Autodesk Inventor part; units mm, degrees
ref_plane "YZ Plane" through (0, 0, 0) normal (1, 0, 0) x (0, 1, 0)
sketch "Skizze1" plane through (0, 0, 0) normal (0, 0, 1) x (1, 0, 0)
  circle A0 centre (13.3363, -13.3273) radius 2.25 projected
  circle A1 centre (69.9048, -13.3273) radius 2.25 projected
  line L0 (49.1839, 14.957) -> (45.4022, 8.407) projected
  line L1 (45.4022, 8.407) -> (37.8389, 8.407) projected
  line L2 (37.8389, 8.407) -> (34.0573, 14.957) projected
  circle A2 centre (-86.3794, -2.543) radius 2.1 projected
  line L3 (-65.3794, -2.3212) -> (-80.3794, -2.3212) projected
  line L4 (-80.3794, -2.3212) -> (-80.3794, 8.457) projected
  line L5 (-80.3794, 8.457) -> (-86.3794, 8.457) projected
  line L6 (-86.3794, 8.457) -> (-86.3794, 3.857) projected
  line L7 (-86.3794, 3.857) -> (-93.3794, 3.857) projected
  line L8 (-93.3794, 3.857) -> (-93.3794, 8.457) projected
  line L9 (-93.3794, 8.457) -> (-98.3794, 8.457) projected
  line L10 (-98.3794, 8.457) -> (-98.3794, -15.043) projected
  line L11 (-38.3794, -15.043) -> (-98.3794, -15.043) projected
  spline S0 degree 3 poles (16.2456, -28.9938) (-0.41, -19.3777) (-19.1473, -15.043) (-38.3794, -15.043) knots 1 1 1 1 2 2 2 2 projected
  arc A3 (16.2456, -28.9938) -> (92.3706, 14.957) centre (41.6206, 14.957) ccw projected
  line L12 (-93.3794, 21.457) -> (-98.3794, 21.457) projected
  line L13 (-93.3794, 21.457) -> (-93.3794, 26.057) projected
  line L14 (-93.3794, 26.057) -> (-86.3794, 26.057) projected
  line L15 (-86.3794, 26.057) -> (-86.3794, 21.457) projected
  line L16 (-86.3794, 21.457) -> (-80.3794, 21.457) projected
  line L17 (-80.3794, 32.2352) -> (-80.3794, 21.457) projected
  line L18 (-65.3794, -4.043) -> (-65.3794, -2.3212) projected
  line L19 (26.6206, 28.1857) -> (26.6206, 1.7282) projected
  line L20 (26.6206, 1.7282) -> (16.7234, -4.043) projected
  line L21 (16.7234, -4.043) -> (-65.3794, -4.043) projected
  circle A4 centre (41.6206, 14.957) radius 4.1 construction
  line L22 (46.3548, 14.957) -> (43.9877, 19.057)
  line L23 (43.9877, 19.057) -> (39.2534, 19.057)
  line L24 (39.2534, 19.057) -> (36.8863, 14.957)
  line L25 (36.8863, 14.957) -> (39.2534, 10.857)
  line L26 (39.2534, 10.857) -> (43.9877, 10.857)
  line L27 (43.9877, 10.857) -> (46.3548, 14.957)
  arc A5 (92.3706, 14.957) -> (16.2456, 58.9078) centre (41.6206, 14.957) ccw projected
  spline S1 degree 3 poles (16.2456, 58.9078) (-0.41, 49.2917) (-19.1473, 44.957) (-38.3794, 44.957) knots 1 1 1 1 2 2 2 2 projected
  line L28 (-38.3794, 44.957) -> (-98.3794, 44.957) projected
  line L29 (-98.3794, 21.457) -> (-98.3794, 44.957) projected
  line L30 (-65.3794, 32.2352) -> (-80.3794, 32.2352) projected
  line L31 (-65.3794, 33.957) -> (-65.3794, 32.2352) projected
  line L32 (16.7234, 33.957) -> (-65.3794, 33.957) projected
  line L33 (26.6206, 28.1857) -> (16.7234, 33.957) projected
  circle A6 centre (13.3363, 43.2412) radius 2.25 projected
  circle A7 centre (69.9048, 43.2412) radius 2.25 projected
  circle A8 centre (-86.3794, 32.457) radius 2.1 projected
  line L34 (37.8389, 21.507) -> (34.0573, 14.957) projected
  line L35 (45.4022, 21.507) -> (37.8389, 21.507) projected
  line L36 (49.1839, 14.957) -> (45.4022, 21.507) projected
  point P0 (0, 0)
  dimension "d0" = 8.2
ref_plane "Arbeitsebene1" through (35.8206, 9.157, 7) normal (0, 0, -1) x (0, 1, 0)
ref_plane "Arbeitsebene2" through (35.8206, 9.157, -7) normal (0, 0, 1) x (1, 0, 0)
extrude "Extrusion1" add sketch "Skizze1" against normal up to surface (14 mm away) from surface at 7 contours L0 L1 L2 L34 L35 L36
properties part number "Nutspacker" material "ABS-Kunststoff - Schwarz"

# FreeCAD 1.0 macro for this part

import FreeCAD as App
import Part
import Sketcher
from FreeCAD import Vector
Q = App.Units.Quantity

doc = App.newDocument("Part")
body = doc.addObject("PartDesign::Body", "Body")

sketch1 = body.newObject("Sketcher::SketchObject", "Sketch")
sketch1.AttachmentSupport = (doc.getObject("XY_Plane"), [""])
sketch1.MapMode = "FlatFace"
sketch1.AttachmentOffset = App.Placement(Vector(0, 0, 7), App.Rotation())
sketch1.addGeometry([
    Part.LineSegment(Vector(45.4022, 8.407, 0), Vector(49.1839, 14.957, 0)),
    Part.LineSegment(Vector(49.1839, 14.957, 0), Vector(45.4022, 21.507, 0)),
    Part.LineSegment(Vector(45.4022, 21.507, 0), Vector(37.8389, 21.507, 0)),
    Part.LineSegment(Vector(37.8389, 21.507, 0), Vector(34.0573, 14.957, 0)),
    Part.LineSegment(Vector(34.0573, 14.957, 0), Vector(37.8389, 8.407, 0)),
    Part.LineSegment(Vector(37.8389, 8.407, 0), Vector(45.4022, 8.407, 0)),
    Part.LineSegment(Vector(43.9877, 19.057, 0), Vector(46.3548, 14.957, 0)),
    Part.LineSegment(Vector(46.3548, 14.957, 0), Vector(43.9877, 10.857, 0)),
    Part.LineSegment(Vector(43.9877, 10.857, 0), Vector(39.2534, 10.857, 0)),
    Part.LineSegment(Vector(39.2534, 10.857, 0), Vector(36.8863, 14.957, 0)),
    Part.LineSegment(Vector(36.8863, 14.957, 0), Vector(39.2534, 19.057, 0)),
    Part.LineSegment(Vector(39.2534, 19.057, 0), Vector(43.9877, 19.057, 0)),
], False)
sketch1.addConstraint([
    Sketcher.Constraint("Coincident", 0, 2, 1, 1),
    Sketcher.Constraint("Coincident", 1, 2, 2, 1),
    Sketcher.Constraint("Coincident", 2, 2, 3, 1),
    Sketcher.Constraint("Coincident", 3, 2, 4, 1),
    Sketcher.Constraint("Coincident", 4, 2, 5, 1),
    Sketcher.Constraint("Coincident", 5, 2, 0, 1),
    Sketcher.Constraint("Coincident", 6, 2, 7, 1),
    Sketcher.Constraint("Coincident", 7, 2, 8, 1),
    Sketcher.Constraint("Coincident", 8, 2, 9, 1),
    Sketcher.Constraint("Coincident", 9, 2, 10, 1),
    Sketcher.Constraint("Coincident", 10, 2, 11, 1),
    Sketcher.Constraint("Coincident", 11, 2, 6, 1),
    Sketcher.Constraint("Horizontal", 2),
    Sketcher.Constraint("Horizontal", 5),
    Sketcher.Constraint("Horizontal", 8),
    Sketcher.Constraint("Horizontal", 11),
    Sketcher.Constraint("Parallel", 0, 3),
    Sketcher.Constraint("Parallel", 1, 4),
    Sketcher.Constraint("Parallel", 4, 6),
    Sketcher.Constraint("Parallel", 3, 7),
    Sketcher.Constraint("Parallel", 6, 9),
    Sketcher.Constraint("Parallel", 7, 10),
    Sketcher.Constraint("Horizontal", 0, 2, 3, 2),
    Sketcher.Constraint("Horizontal", 3, 2, 6, 2),
    Sketcher.Constraint("Horizontal", 6, 2, 9, 2),
    Sketcher.Constraint("Vertical", 2, 2, 4, 2),
    Sketcher.Constraint("Vertical", 1, 2, 5, 2),
    Sketcher.Constraint("Vertical", 8, 2, 10, 2),
    Sketcher.Constraint("Angle", 0, Q("59.9996 deg")),
    Sketcher.Constraint("DistanceY", 4, 2, 2, 2, 13.1),
    Sketcher.Constraint("DistanceY", 7, 2, 6, 2, 4.1),
    Sketcher.Constraint("DistanceX", 2, 2, 2, 1, 7.5633),
    Sketcher.Constraint("DistanceX", 8, 2, 8, 1, 4.7343),
    Sketcher.Constraint("DistanceX", -1, 1, 0, 2, 49.184),
    Sketcher.Constraint("DistanceY", -1, 1, 0, 2, 14.957),
    Sketcher.Constraint("DistanceX", 6, 2, 0, 2, 2.829),
])
pad1 = body.newObject("PartDesign::Pad", "Pad")
pad1.Profile = sketch1
pad1.Length = 14
pad1.Reversed = True

doc.recompute()
